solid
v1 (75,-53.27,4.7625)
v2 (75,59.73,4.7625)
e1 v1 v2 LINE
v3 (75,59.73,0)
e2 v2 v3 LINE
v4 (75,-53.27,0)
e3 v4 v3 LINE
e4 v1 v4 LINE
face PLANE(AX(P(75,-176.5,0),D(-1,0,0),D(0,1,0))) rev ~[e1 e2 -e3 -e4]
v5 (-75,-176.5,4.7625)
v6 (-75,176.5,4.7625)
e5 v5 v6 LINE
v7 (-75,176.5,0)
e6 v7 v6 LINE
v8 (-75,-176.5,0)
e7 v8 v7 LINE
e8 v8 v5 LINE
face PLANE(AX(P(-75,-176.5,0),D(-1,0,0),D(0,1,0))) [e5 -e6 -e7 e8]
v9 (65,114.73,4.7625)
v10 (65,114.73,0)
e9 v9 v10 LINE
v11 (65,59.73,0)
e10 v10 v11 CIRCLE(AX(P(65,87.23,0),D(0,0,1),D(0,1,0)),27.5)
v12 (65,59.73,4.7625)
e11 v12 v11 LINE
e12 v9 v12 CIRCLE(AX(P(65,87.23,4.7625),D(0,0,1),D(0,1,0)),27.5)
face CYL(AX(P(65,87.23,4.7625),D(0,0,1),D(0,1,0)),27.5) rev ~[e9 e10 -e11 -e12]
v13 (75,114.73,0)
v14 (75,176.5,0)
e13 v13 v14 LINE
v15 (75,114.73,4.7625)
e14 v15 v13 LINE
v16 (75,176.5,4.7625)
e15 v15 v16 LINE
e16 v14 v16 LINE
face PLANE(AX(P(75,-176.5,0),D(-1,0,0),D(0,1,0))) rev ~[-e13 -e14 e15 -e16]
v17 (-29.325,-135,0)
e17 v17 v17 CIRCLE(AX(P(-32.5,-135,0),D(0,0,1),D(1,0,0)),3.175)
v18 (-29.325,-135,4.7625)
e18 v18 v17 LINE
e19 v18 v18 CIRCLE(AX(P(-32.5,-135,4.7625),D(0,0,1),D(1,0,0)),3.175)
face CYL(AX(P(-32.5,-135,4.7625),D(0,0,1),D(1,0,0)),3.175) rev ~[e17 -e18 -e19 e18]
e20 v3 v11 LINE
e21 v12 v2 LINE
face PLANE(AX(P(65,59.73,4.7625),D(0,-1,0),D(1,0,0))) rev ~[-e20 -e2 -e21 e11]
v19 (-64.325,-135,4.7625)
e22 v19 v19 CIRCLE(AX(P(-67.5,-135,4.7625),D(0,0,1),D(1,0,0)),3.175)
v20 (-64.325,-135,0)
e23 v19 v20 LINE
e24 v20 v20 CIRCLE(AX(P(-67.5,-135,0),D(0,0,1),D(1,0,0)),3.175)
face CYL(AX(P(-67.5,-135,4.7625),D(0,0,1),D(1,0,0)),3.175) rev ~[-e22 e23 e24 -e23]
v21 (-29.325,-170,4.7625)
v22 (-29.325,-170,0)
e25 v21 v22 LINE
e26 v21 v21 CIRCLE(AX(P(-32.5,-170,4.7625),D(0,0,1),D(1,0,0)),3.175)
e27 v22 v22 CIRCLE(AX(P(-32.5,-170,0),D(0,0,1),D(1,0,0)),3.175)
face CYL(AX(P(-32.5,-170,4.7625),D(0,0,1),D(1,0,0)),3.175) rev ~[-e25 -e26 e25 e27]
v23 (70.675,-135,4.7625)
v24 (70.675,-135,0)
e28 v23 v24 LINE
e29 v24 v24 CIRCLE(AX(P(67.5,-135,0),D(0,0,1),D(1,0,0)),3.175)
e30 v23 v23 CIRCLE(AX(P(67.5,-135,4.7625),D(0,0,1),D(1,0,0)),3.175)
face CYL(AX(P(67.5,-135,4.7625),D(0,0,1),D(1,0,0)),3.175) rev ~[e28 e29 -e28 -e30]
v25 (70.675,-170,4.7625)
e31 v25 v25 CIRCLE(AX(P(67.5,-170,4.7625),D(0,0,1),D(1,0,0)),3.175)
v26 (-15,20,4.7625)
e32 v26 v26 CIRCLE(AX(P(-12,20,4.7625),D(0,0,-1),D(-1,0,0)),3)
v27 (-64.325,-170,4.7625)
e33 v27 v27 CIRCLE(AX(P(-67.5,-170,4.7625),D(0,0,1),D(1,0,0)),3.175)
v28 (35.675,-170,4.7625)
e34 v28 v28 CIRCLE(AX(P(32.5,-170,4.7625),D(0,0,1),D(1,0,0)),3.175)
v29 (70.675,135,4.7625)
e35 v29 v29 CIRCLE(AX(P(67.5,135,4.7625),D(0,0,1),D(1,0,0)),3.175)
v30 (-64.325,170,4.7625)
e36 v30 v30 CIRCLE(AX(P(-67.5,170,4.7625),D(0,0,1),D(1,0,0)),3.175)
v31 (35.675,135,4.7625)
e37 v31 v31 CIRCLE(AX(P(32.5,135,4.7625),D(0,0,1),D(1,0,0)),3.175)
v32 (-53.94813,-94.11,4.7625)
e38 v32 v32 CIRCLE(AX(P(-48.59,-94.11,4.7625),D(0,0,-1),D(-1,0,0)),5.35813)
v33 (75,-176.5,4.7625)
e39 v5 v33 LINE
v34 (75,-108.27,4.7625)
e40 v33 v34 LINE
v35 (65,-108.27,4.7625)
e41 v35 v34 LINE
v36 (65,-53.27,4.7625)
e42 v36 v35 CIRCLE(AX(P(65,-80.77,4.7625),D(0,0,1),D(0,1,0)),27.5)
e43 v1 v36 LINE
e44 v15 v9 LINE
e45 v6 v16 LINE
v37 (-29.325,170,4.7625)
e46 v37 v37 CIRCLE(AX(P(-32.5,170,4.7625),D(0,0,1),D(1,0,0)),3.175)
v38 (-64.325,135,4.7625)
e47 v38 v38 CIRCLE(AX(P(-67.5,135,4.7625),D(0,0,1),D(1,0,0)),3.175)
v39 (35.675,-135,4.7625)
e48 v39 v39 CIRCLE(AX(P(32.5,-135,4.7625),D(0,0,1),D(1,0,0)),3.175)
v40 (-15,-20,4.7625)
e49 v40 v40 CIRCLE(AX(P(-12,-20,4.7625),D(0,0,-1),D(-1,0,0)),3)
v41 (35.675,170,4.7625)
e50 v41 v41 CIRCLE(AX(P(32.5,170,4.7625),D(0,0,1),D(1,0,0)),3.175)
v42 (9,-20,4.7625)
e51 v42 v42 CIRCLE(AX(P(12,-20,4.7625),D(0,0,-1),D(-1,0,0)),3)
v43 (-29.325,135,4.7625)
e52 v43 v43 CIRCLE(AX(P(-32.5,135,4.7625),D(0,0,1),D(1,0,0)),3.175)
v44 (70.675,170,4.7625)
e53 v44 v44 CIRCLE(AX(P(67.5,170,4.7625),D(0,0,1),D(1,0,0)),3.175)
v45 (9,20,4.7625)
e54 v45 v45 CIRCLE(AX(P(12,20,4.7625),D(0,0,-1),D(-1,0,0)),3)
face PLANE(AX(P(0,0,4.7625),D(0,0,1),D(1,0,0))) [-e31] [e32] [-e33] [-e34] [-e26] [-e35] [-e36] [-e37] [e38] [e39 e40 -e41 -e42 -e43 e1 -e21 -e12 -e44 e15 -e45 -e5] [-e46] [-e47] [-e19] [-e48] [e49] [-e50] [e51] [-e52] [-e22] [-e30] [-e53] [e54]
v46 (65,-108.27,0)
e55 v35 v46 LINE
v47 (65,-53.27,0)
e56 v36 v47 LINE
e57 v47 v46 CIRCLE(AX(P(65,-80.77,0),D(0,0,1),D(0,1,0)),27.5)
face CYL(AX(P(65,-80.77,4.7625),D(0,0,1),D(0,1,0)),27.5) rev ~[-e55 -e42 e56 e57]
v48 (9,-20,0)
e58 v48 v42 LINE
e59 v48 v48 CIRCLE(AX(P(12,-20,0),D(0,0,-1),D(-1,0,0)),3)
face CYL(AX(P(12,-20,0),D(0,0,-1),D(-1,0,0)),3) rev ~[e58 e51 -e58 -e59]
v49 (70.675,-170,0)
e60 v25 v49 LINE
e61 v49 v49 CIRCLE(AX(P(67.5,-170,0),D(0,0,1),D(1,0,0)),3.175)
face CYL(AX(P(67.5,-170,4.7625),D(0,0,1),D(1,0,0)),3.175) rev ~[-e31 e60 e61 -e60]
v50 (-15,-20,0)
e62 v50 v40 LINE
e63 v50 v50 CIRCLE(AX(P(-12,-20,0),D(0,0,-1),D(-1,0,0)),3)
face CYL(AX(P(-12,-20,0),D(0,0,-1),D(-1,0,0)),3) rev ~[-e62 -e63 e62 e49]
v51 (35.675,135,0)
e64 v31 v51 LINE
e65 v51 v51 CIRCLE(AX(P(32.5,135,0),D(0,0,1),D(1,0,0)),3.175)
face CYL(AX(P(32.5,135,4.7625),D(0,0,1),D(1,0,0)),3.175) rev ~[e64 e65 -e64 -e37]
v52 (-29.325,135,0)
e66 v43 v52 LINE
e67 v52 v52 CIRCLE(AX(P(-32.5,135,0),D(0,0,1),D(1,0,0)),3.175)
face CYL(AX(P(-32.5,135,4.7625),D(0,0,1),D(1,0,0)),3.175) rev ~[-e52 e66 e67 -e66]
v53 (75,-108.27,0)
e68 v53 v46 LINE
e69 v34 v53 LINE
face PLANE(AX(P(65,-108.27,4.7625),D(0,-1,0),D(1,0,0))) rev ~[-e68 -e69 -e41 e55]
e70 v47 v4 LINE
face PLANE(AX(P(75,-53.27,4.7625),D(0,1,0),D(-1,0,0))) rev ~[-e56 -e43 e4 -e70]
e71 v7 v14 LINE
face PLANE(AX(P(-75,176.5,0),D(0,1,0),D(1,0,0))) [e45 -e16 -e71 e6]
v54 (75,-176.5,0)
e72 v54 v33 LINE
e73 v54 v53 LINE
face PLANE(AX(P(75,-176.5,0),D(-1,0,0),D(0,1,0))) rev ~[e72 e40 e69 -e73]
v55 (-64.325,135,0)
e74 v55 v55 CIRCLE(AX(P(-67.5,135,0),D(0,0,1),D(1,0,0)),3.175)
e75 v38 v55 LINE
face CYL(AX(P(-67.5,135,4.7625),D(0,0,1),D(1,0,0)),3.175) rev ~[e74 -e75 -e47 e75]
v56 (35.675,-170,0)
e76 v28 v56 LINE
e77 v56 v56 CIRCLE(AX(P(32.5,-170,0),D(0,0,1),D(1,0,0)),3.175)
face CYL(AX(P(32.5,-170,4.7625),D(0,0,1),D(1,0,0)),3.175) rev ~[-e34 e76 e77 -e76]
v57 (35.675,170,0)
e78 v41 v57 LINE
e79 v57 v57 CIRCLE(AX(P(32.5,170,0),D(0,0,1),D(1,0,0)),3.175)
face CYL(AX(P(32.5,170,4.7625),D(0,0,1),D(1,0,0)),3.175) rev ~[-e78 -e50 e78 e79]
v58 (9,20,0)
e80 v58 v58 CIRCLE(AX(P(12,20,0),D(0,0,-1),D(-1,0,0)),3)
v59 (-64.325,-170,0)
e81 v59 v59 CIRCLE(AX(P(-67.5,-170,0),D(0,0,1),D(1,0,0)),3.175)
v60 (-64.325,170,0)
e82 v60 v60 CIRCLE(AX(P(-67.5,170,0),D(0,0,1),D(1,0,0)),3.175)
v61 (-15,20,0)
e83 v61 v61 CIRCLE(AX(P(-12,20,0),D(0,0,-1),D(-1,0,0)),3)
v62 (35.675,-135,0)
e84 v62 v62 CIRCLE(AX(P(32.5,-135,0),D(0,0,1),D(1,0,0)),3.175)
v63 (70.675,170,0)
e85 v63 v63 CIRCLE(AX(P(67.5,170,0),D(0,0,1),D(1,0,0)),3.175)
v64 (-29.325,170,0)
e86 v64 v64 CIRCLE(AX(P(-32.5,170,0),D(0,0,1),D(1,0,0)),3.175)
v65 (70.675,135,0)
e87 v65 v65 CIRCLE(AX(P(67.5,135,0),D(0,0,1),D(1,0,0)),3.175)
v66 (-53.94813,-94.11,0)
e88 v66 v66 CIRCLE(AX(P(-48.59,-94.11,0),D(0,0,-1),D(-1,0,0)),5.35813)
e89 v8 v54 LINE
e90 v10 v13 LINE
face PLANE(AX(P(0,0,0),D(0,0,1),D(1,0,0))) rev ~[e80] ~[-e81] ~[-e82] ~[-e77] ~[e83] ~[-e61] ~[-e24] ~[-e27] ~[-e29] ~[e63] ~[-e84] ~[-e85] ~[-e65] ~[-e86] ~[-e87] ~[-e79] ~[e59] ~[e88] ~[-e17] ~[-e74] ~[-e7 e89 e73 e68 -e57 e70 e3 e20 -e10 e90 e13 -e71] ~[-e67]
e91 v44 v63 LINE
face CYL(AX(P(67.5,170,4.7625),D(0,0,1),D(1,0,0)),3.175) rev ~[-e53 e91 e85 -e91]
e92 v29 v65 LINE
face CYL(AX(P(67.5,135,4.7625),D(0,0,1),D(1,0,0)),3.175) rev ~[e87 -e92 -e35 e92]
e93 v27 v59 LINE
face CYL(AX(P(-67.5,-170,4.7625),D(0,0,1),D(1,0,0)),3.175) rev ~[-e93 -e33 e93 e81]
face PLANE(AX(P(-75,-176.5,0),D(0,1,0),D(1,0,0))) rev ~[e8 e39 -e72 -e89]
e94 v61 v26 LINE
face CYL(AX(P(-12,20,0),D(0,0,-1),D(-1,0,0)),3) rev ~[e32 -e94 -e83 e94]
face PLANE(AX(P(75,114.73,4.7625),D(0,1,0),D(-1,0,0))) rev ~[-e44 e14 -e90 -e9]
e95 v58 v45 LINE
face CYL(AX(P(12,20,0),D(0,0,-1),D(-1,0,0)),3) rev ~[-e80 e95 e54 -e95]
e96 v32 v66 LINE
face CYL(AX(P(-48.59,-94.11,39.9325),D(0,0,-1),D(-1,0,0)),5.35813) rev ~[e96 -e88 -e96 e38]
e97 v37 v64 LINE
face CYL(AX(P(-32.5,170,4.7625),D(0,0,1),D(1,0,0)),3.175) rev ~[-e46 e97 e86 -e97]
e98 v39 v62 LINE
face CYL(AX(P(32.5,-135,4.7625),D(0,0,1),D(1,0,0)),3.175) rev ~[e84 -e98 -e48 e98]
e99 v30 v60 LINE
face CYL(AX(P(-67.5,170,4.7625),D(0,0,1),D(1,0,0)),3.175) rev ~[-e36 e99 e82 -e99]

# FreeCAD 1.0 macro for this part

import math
import FreeCAD as App
import Part
import Sketcher

V = App.Vector


def add_polygon(sketch, points):
    """Adds a closed chain of lines whose ends are joined by coincident constraints."""
    first, n = sketch.GeometryCount, len(points)
    for a, b in zip(points, points[1:] + points[:1]):
        sketch.addGeometry(Part.LineSegment(App.Vector(*a, 0), App.Vector(*b, 0)), False)
    for i in range(n):
        sketch.addConstraint(Sketcher.Constraint("Coincident", first + i, 2, first + (i + 1) % n, 1))

doc = App.newDocument("Part")
body = doc.addObject("PartDesign::Body", "Body")

# Sketch on XY plane
sketch1 = body.newObject("Sketcher::SketchObject", "Sketch")
sketch1.AttachmentSupport = (doc.getObject("XY_Plane"), [""])
sketch1.MapMode = "FlatFace"
add_polygon(sketch1, [(-75, 176.5), (-75, -176.5), (75, -176.5), (75, 176.5)])  # lines 0-3
sketch1.addConstraint(Sketcher.Constraint("Vertical", 0))
sketch1.addConstraint(Sketcher.Constraint("Horizontal", 1))
sketch1.addConstraint(Sketcher.Constraint("Vertical", 2))
sketch1.addConstraint(Sketcher.Constraint("Horizontal", 3))
sketch1.addConstraint(Sketcher.Constraint("Symmetric", 0, 2, 2, 2, -1, 1))
sketch1.addConstraint(Sketcher.Constraint("DistanceX", 1, 1, 1, 2, 150.0))
sketch1.addConstraint(Sketcher.Constraint("DistanceY", 0, 2, 0, 1, 353.0))
pad1 = body.newObject("PartDesign::Pad", "Pad")
pad1.Profile = sketch1
pad1.Length = 4.7625

# Sketch on XY plane
sketch2 = body.newObject("Sketcher::SketchObject", "Sketch001")
sketch2.AttachmentSupport = (doc.getObject("XY_Plane"), [""])
sketch2.MapMode = "FlatFace"
sketch2.AttachmentOffset = App.Placement(V(0, 0, 4.7625), App.Rotation())
sketch2.addGeometry(Part.Circle(V(-67.5, 170, 0), V(0, 0, 1), 3.175), False)
sketch2.addGeometry(Part.Circle(V(-32.5, 170, 0), V(0, 0, 1), 3.175), False)
sketch2.addGeometry(Part.Circle(V(-67.5, 135, 0), V(0, 0, 1), 3.175), False)
sketch2.addGeometry(Part.Circle(V(-32.5, 135, 0), V(0, 0, 1), 3.175), False)
sketch2.addGeometry(Part.Circle(V(32.5, 170, 0), V(0, 0, 1), 3.175), False)
sketch2.addGeometry(Part.Circle(V(67.5, 170, 0), V(0, 0, 1), 3.175), False)
sketch2.addGeometry(Part.Circle(V(32.5, 135, 0), V(0, 0, 1), 3.175), False)
sketch2.addGeometry(Part.Circle(V(67.5, 135, 0), V(0, 0, 1), 3.175), False)
sketch2.addGeometry(Part.Circle(V(-67.5, -135, 0), V(0, 0, 1), 3.175), False)
sketch2.addGeometry(Part.Circle(V(-32.5, -135, 0), V(0, 0, 1), 3.175), False)
sketch2.addGeometry(Part.Circle(V(-67.5, -170, 0), V(0, 0, 1), 3.175), False)
sketch2.addGeometry(Part.Circle(V(-32.5, -170, 0), V(0, 0, 1), 3.175), False)
sketch2.addGeometry(Part.Circle(V(32.5, -170, 0), V(0, 0, 1), 3.175), False)
sketch2.addGeometry(Part.Circle(V(32.5, -135, 0), V(0, 0, 1), 3.175), False)
sketch2.addGeometry(Part.Circle(V(67.5, -135, 0), V(0, 0, 1), 3.175), False)
sketch2.addGeometry(Part.Circle(V(67.5, -170, 0), V(0, 0, 1), 3.175), False)
sketch2.addConstraint(Sketcher.Constraint("Equal", 0, 1))
sketch2.addConstraint(Sketcher.Constraint("Equal", 1, 2))
sketch2.addConstraint(Sketcher.Constraint("Equal", 2, 3))
sketch2.addConstraint(Sketcher.Constraint("Equal", 3, 4))
sketch2.addConstraint(Sketcher.Constraint("Equal", 4, 5))
sketch2.addConstraint(Sketcher.Constraint("Equal", 5, 6))
sketch2.addConstraint(Sketcher.Constraint("Equal", 6, 7))
sketch2.addConstraint(Sketcher.Constraint("Equal", 7, 8))
sketch2.addConstraint(Sketcher.Constraint("Equal", 8, 9))
sketch2.addConstraint(Sketcher.Constraint("Equal", 9, 10))
sketch2.addConstraint(Sketcher.Constraint("Equal", 10, 11))
sketch2.addConstraint(Sketcher.Constraint("Equal", 11, 12))
sketch2.addConstraint(Sketcher.Constraint("Equal", 12, 13))
sketch2.addConstraint(Sketcher.Constraint("Equal", 13, 14))
sketch2.addConstraint(Sketcher.Constraint("Equal", 14, 15))
sketch2.addConstraint(Sketcher.Constraint("Symmetric", 7, 3, 8, 3, -1, 1))
sketch2.addConstraint(Sketcher.Constraint("Symmetric", 6, 3, 9, 3, -1, 1))
sketch2.addConstraint(Sketcher.Constraint("Symmetric", 5, 3, 10, 3, -1, 1))
sketch2.addConstraint(Sketcher.Constraint("Symmetric", 4, 3, 11, 3, -1, 1))
sketch2.addConstraint(Sketcher.Constraint("Symmetric", 1, 3, 12, 3, -1, 1))
sketch2.addConstraint(Sketcher.Constraint("Symmetric", 3, 3, 13, 3, -1, 1))
sketch2.addConstraint(Sketcher.Constraint("Symmetric", 2, 3, 14, 3, -1, 1))
sketch2.addConstraint(Sketcher.Constraint("Symmetric", 0, 3, 15, 3, -1, 1))
sketch2.addConstraint(Sketcher.Constraint("Symmetric", 1, 3, 4, 3, -2))
sketch2.addConstraint(Sketcher.Constraint("Symmetric", 0, 3, 5, 3, -2))
sketch2.addConstraint(Sketcher.Constraint("Symmetric", 3, 3, 6, 3, -2))
sketch2.addConstraint(Sketcher.Constraint("Symmetric", 2, 3, 7, 3, -2))
sketch2.addConstraint(Sketcher.Constraint("Horizontal", 0, 3, 1, 3))
sketch2.addConstraint(Sketcher.Constraint("Horizontal", 2, 3, 3, 3))
sketch2.addConstraint(Sketcher.Constraint("Vertical", 0, 3, 2, 3))
sketch2.addConstraint(Sketcher.Constraint("Vertical", 1, 3, 3, 3))
sketch2.addConstraint(Sketcher.Constraint("Diameter", 0, 6.35))
sketch2.addConstraint(Sketcher.Constraint("DistanceY", -1, 1, 0, 3, 170.0))
sketch2.addConstraint(Sketcher.Constraint("DistanceY", -1, 1, 2, 3, 135.0))
sketch2.addConstraint(Sketcher.Constraint("DistanceX", 0, 3, 1, 3, 35.0))
sketch2.addConstraint(Sketcher.Constraint("DistanceX", 1, 3, 4, 3, 65.0))
pocket1 = body.newObject("PartDesign::Pocket", "Pocket")
pocket1.Profile = sketch2
pocket1.Type = "ThroughAll"

# Sketch on XY plane
sketch3 = body.newObject("Sketcher::SketchObject", "Sketch002")
sketch3.AttachmentSupport = (doc.getObject("XY_Plane"), [""])
sketch3.MapMode = "FlatFace"
sketch3.addGeometry(Part.Circle(V(12, 20, 0), V(0, 0, 1), 3), False)
sketch3.addConstraint(Sketcher.Constraint("Diameter", 0, 6.0))
sketch3.addConstraint(Sketcher.Constraint("DistanceX", -1, 1, 0, 3, 12.0))
sketch3.addConstraint(Sketcher.Constraint("DistanceY", -1, 1, 0, 3, 20.0))
pocket2 = body.newObject("PartDesign::Pocket", "Pocket001")
pocket2.Profile = sketch3
pocket2.Type = "UpToFirst"
pocket2.Reversed = True

# Sketch on XY plane
sketch4 = body.newObject("Sketcher::SketchObject", "Sketch003")
sketch4.AttachmentSupport = (doc.getObject("XY_Plane"), [""])
sketch4.MapMode = "FlatFace"
sketch4.addGeometry(Part.Circle(V(-12, 20, 0), V(0, 0, 1), 3), False)
sketch4.addConstraint(Sketcher.Constraint("Diameter", 0, 6.0))
sketch4.addConstraint(Sketcher.Constraint("DistanceX", 0, 3, -1, 1, 12.0))
sketch4.addConstraint(Sketcher.Constraint("DistanceY", -1, 1, 0, 3, 20.0))
pocket3 = body.newObject("PartDesign::Pocket", "Pocket002")
pocket3.Profile = sketch4
pocket3.Type = "UpToFirst"
pocket3.Reversed = True

# Sketch on XY plane
sketch5 = body.newObject("Sketcher::SketchObject", "Sketch004")
sketch5.AttachmentSupport = (doc.getObject("XY_Plane"), [""])
sketch5.MapMode = "FlatFace"
sketch5.addGeometry(Part.Circle(V(-12, -20, 0), V(0, 0, 1), 3), False)
sketch5.addConstraint(Sketcher.Constraint("Diameter", 0, 6.0))
sketch5.addConstraint(Sketcher.Constraint("DistanceX", 0, 3, -1, 1, 12.0))
sketch5.addConstraint(Sketcher.Constraint("DistanceY", 0, 3, -1, 1, 20.0))
pocket4 = body.newObject("PartDesign::Pocket", "Pocket003")
pocket4.Profile = sketch5
pocket4.Type = "UpToFirst"
pocket4.Reversed = True

# Sketch on XY plane
sketch6 = body.newObject("Sketcher::SketchObject", "Sketch005")
sketch6.AttachmentSupport = (doc.getObject("XY_Plane"), [""])
sketch6.MapMode = "FlatFace"
sketch6.addGeometry(Part.Circle(V(12, -20, 0), V(0, 0, 1), 3), False)
sketch6.addConstraint(Sketcher.Constraint("Diameter", 0, 6.0))
sketch6.addConstraint(Sketcher.Constraint("DistanceX", -1, 1, 0, 3, 12.0))
sketch6.addConstraint(Sketcher.Constraint("DistanceY", 0, 3, -1, 1, 20.0))
pocket5 = body.newObject("PartDesign::Pocket", "Pocket004")
pocket5.Profile = sketch6
pocket5.Type = "UpToFirst"
pocket5.Reversed = True

# Sketch on XY plane
sketch7 = body.newObject("Sketcher::SketchObject", "Sketch006")
sketch7.AttachmentSupport = (doc.getObject("XY_Plane"), [""])
sketch7.MapMode = "FlatFace"
sketch7.AttachmentOffset = App.Placement(V(0, 0, 4.7625), App.Rotation())
sketch7.addGeometry(Part.Circle(V(-48.59, -94.11, 0), V(0, 0, 1), 5), False)
sketch7.addConstraint(Sketcher.Constraint("Diameter", 0, 10.0))
sketch7.addConstraint(Sketcher.Constraint("DistanceX", 0, 3, -1, 1, 48.59))
sketch7.addConstraint(Sketcher.Constraint("DistanceY", 0, 3, -1, 1, 94.11))
pocket6 = body.newObject("PartDesign::Pocket", "Pocket005")
pocket6.Profile = sketch7
pocket6.Type = "UpToFirst"

# Sketch on XY plane
sketch8 = body.newObject("Sketcher::SketchObject", "Sketch007")
sketch8.AttachmentSupport = (doc.getObject("XY_Plane"), [""])
sketch8.MapMode = "FlatFace"
sketch8.AttachmentOffset = App.Placement(V(0, 0, 4.7625), App.Rotation())
sketch8.addGeometry(Part.LineSegment(V(75, 114.73, 0), V(65, 114.73, 0)), False)
sketch8.addGeometry(Part.ArcOfCircle(Part.Circle(V(65, 87.23, 0), V(0, 0, 1), 27.5), math.radians(90), math.radians(270)), False)
sketch8.addGeometry(Part.LineSegment(V(65, 59.73, 0), V(75, 59.73, 0)), False)
sketch8.addGeometry(Part.LineSegment(V(75, 59.73, 0), V(75, 114.73, 0)), False)
sketch8.addConstraint(Sketcher.Constraint("Tangent", 0, 2, 1, 1))
sketch8.addConstraint(Sketcher.Constraint("Tangent", 1, 2, 2, 1))
sketch8.addConstraint(Sketcher.Constraint("Coincident", 2, 2, 3, 1))
sketch8.addConstraint(Sketcher.Constraint("Coincident", 3, 2, 0, 1))
sketch8.addConstraint(Sketcher.Constraint("Horizontal", 0))
sketch8.addConstraint(Sketcher.Constraint("Horizontal", 2))
sketch8.addConstraint(Sketcher.Constraint("Vertical", 3))
sketch8.addConstraint(Sketcher.Constraint("Radius", 1, 27.5))
sketch8.addConstraint(Sketcher.Constraint("DistanceX", 0, 2, 0, 1, 10.0))
sketch8.addConstraint(Sketcher.Constraint("DistanceX", -1, 1, 1, 3, 65.0))
sketch8.addConstraint(Sketcher.Constraint("DistanceY", -1, 1, 1, 3, 87.23))
pocket7 = body.newObject("PartDesign::Pocket", "Pocket006")
pocket7.Profile = sketch8
pocket7.Type = "UpToFirst"

# Sketch on XY plane
sketch9 = body.newObject("Sketcher::SketchObject", "Sketch008")
sketch9.AttachmentSupport = (doc.getObject("XY_Plane"), [""])
sketch9.MapMode = "FlatFace"
sketch9.AttachmentOffset = App.Placement(V(0, 0, 4.7625), App.Rotation())
sketch9.addGeometry(Part.LineSegment(V(75, -53.27, 0), V(65, -53.27, 0)), False)
sketch9.addGeometry(Part.ArcOfCircle(Part.Circle(V(65, -80.77, 0), V(0, 0, 1), 27.5), math.radians(90), math.radians(270)), False)
sketch9.addGeometry(Part.LineSegment(V(65, -108.27, 0), V(75, -108.27, 0)), False)
sketch9.addGeometry(Part.LineSegment(V(75, -108.27, 0), V(75, -53.27, 0)), False)
sketch9.addConstraint(Sketcher.Constraint("Tangent", 0, 2, 1, 1))
sketch9.addConstraint(Sketcher.Constraint("Tangent", 1, 2, 2, 1))
sketch9.addConstraint(Sketcher.Constraint("Coincident", 2, 2, 3, 1))
sketch9.addConstraint(Sketcher.Constraint("Coincident", 3, 2, 0, 1))
sketch9.addConstraint(Sketcher.Constraint("Horizontal", 0))
sketch9.addConstraint(Sketcher.Constraint("Horizontal", 2))
sketch9.addConstraint(Sketcher.Constraint("Vertical", 3))
sketch9.addConstraint(Sketcher.Constraint("Radius", 1, 27.5))
sketch9.addConstraint(Sketcher.Constraint("DistanceX", 0, 2, 0, 1, 10.0))
sketch9.addConstraint(Sketcher.Constraint("DistanceX", -1, 1, 1, 3, 65.0))
sketch9.addConstraint(Sketcher.Constraint("DistanceY", 1, 3, -1, 1, 80.77))
pocket8 = body.newObject("PartDesign::Pocket", "Pocket007")
pocket8.Profile = sketch9
pocket8.Type = "UpToFirst"

# Sketch on XY plane
sketch10 = body.newObject("Sketcher::SketchObject", "Sketch009")
sketch10.AttachmentSupport = (doc.getObject("XY_Plane"), [""])
sketch10.MapMode = "FlatFace"
sketch10.AttachmentOffset = App.Placement(V(0, 0, 4.7625), App.Rotation())
sketch10.addGeometry(Part.Circle(V(-48.59, -94.11, 0), V(0, 0, 1), 5.35813), False)
sketch10.addConstraint(Sketcher.Constraint("Diameter", 0, 10.71626))
sketch10.addConstraint(Sketcher.Constraint("DistanceX", 0, 3, -1, 1, 48.59))
sketch10.addConstraint(Sketcher.Constraint("DistanceY", 0, 3, -1, 1, 94.11))
doc.recompute()
hole = body.newObject("PartDesign::Hole", "Hole")
hole.Profile = sketch10
hole.ThreadType = "None"
hole.Diameter = 10.71626
hole.DepthType = "Dimension"
hole.Depth = 35.17
hole.DrillPoint = "Angled"
hole.DrillPointAngle = 118

doc.recompute()
